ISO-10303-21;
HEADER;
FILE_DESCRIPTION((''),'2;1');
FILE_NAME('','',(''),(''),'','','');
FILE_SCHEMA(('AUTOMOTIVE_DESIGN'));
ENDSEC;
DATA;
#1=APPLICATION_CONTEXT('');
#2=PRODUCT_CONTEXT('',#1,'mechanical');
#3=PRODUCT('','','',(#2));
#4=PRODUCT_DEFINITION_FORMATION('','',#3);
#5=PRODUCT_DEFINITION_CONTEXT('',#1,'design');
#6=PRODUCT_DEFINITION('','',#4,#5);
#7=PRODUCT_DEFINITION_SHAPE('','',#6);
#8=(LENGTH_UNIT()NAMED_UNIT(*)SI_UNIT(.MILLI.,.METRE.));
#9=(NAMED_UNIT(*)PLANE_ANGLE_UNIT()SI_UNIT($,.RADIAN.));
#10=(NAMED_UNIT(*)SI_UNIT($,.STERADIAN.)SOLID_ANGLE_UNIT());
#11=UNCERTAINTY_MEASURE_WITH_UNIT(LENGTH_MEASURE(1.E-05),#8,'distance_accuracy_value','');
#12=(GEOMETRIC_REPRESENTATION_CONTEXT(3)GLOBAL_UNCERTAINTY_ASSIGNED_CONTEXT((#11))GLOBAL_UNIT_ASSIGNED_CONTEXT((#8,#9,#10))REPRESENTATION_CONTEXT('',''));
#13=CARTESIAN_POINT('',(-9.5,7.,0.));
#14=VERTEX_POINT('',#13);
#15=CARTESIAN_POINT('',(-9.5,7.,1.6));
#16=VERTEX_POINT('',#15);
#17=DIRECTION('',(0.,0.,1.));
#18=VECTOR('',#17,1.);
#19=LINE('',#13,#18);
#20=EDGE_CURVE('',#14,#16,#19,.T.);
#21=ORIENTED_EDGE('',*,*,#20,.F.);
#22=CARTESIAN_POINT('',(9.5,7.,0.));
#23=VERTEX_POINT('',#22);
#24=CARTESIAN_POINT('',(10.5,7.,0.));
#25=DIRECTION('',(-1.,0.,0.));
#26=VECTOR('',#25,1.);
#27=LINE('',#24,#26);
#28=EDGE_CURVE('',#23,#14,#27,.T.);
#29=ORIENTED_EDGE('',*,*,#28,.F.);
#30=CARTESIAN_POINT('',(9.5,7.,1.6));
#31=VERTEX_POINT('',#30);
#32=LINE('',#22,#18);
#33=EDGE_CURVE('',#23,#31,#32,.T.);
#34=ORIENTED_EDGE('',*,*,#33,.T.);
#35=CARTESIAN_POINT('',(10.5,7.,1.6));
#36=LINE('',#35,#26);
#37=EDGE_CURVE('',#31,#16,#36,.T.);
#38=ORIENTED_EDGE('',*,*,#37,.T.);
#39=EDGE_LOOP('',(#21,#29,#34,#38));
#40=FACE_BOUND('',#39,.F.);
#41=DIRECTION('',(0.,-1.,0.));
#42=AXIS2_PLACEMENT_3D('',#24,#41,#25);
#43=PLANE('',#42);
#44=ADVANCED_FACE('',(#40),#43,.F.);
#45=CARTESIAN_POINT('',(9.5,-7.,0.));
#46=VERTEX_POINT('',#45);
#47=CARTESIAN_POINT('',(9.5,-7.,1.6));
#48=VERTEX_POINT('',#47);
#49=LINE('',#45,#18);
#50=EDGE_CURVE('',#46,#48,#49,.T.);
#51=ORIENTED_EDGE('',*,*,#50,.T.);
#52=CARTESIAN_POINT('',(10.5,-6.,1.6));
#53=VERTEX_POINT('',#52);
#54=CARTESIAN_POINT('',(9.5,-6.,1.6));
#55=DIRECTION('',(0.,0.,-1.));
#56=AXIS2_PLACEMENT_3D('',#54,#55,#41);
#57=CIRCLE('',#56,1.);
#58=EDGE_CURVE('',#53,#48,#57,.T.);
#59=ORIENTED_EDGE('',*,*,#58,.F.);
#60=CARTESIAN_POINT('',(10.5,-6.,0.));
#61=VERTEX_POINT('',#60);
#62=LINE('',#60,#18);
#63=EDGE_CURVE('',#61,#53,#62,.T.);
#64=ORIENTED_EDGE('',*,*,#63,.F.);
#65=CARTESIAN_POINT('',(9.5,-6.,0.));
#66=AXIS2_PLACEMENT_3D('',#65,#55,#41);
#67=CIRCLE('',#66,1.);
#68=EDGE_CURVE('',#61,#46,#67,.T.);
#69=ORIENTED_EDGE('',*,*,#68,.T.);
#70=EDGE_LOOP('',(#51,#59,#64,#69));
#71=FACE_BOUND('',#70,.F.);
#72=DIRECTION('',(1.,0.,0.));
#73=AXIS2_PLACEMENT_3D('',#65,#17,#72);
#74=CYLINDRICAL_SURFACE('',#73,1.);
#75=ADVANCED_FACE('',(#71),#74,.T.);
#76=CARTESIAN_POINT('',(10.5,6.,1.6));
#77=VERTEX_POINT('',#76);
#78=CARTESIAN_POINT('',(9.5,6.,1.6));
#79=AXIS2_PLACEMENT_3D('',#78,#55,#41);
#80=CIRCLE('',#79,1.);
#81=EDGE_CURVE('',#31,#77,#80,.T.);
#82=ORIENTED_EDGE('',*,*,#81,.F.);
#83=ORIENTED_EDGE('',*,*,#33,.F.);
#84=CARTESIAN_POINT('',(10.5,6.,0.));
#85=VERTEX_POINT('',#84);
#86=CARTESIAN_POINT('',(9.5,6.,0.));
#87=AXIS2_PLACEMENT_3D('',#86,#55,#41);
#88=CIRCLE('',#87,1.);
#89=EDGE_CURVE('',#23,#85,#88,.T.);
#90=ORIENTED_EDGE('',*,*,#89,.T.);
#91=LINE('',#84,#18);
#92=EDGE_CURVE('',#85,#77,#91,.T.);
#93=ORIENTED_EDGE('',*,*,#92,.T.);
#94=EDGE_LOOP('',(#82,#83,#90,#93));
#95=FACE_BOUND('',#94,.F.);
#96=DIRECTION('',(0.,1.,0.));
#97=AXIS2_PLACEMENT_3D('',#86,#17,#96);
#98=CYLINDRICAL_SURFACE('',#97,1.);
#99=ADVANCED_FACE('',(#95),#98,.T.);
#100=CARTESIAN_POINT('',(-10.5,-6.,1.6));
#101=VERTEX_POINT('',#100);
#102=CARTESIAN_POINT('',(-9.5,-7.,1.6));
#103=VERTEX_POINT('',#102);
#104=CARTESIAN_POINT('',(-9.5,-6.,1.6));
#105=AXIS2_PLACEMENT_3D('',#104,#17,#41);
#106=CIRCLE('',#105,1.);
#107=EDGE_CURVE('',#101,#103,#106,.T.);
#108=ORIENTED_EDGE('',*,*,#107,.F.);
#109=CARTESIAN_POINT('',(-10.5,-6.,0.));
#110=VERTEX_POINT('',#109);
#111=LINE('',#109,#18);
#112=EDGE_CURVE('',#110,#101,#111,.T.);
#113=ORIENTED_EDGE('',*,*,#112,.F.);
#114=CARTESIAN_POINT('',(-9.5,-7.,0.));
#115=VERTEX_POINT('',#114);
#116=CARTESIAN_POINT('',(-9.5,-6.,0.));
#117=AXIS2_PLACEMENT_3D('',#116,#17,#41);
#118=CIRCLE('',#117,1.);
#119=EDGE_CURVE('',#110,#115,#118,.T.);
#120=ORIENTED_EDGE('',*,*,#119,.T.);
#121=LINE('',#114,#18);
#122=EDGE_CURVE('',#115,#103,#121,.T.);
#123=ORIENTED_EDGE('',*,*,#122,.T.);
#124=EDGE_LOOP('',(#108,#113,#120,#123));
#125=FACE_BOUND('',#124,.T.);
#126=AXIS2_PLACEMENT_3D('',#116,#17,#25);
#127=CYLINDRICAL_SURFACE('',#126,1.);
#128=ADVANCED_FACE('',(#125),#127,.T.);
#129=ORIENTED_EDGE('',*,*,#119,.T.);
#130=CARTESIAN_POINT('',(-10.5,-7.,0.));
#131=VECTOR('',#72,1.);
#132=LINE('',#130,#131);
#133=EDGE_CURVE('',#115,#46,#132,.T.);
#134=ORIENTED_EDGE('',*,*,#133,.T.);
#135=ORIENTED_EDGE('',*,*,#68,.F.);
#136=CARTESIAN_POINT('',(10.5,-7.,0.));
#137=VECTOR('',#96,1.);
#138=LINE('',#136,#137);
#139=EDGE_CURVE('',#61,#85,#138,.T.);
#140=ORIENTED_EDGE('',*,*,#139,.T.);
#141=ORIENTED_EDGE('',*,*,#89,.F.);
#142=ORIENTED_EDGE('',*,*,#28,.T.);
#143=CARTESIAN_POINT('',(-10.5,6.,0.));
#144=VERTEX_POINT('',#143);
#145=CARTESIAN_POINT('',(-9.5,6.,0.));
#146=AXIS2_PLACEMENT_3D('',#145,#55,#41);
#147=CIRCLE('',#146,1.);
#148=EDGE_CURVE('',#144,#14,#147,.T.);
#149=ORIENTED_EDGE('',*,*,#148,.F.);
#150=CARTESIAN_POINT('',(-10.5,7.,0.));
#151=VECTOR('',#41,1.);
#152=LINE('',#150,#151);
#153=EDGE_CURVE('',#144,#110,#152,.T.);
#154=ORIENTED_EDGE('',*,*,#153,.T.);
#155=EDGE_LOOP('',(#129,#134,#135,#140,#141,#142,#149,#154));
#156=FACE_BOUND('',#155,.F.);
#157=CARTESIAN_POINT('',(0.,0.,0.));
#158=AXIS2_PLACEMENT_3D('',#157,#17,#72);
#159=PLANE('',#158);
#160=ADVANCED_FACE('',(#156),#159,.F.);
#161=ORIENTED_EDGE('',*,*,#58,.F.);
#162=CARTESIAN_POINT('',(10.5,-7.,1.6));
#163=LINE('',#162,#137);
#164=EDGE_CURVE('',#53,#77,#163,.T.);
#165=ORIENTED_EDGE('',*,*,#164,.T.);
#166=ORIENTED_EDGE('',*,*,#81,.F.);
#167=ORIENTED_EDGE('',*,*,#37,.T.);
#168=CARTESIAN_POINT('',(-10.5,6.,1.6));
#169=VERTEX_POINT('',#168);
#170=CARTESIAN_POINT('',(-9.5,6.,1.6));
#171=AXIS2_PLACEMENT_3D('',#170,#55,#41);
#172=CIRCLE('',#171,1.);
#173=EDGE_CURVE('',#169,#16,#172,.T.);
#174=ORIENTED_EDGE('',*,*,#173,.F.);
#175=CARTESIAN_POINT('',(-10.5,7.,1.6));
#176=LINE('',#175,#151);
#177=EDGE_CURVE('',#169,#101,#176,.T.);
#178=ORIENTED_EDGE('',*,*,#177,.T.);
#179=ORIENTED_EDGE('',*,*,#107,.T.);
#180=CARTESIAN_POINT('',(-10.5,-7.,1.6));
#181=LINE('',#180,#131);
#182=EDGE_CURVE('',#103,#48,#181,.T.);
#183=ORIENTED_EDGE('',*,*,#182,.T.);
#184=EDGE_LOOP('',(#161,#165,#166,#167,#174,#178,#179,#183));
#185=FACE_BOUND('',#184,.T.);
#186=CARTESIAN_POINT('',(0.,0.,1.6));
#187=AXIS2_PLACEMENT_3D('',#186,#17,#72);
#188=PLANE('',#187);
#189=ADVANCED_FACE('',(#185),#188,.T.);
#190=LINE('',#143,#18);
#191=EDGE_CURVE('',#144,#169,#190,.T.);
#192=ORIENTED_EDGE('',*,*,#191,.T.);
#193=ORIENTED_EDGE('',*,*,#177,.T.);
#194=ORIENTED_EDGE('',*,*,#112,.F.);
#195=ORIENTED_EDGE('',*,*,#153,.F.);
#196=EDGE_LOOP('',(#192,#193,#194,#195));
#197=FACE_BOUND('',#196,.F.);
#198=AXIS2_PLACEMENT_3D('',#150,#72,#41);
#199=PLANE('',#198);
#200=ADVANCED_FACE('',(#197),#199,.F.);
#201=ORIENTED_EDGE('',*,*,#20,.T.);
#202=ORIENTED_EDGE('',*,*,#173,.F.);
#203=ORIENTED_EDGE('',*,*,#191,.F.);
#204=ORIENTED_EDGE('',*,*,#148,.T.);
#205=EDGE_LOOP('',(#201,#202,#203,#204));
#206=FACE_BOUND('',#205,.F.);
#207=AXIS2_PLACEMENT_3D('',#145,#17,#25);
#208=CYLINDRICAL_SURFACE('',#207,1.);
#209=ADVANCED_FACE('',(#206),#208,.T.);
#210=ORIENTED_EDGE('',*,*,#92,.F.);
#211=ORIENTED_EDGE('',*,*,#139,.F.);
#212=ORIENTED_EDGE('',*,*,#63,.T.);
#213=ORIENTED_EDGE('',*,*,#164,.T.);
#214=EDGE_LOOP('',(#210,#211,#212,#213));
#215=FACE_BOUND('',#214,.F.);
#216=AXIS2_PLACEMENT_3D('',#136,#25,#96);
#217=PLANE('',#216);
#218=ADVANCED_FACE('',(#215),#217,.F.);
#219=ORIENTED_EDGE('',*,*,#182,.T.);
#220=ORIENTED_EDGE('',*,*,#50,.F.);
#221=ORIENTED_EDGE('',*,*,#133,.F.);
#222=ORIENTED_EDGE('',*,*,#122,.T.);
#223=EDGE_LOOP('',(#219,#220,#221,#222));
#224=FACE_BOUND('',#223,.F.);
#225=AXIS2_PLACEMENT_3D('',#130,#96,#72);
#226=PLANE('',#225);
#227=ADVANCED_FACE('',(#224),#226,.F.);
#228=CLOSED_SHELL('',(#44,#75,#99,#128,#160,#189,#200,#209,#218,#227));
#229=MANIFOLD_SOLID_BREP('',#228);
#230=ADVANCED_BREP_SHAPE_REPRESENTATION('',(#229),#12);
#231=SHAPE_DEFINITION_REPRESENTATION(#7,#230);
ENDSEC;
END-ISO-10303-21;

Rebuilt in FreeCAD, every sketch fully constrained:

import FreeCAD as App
import Part
import Sketcher

V = App.Vector


def edges_at(feature, points):
    """Names of the edges that pass closest to the given points."""
    edges = feature.Shape.Edges
    near = lambda p: min(range(len(edges)), key=lambda i: edges[i].distToShape(Part.Vertex(*p))[0])
    return sorted({f"Edge{near(p) + 1}" for p in points})


def add_polygon(sketch, points):
    """Adds a closed chain of lines whose ends are joined by coincident constraints."""
    first, n = sketch.GeometryCount, len(points)
    for a, b in zip(points, points[1:] + points[:1]):
        sketch.addGeometry(Part.LineSegment(App.Vector(*a, 0), App.Vector(*b, 0)), False)
    for i in range(n):
        sketch.addConstraint(Sketcher.Constraint("Coincident", first + i, 2, first + (i + 1) % n, 1))

doc = App.newDocument("Part")
params = doc.addObject("Spreadsheet::Sheet", "Params")
for row, (alias, value) in enumerate([
    ("sketch1_width", "21 mm"),
    ("sketch1_height", "14 mm"),
    ("pad1_length", "1.6 mm"),
    ("fillet_radius", "1 mm"),
], start=1):
    params.set(f"A{row}", alias)
    params.set(f"B{row}", "=" + value)
    params.setAlias(f"B{row}", alias)

body = doc.addObject("PartDesign::Body", "Body")

# Sketch on XY plane
sketch1 = body.newObject("Sketcher::SketchObject", "Sketch")
sketch1.AttachmentSupport = (doc.getObject("XY_Plane"), [""])
sketch1.MapMode = "FlatFace"
add_polygon(sketch1, [(-10.5, 7), (-10.5, -7), (10.5, -7), (10.5, 7)])  # lines 0-3
sketch1.addConstraint(Sketcher.Constraint("Vertical", 0))
sketch1.addConstraint(Sketcher.Constraint("Horizontal", 1))
sketch1.addConstraint(Sketcher.Constraint("Vertical", 2))
sketch1.addConstraint(Sketcher.Constraint("Horizontal", 3))
sketch1.addConstraint(Sketcher.Constraint("Symmetric", 0, 2, 2, 2, -1, 1))
sketch1.addConstraint(Sketcher.Constraint("DistanceX", 1, 1, 1, 2, 21.0))
sketch1.addConstraint(Sketcher.Constraint("DistanceY", 0, 2, 0, 1, 14.0))
sketch1.setExpression("Constraints[9]", "Params.sketch1_width")
sketch1.setExpression("Constraints[10]", "Params.sketch1_height")
pad1 = body.newObject("PartDesign::Pad", "Pad")
pad1.Profile = sketch1
pad1.setExpression("Length", "Params.pad1_length")
doc.recompute()

fillet = body.newObject("PartDesign::Fillet", "Fillet")
fillet.Base = (pad1, edges_at(pad1, [
    (10.5, 7, 0.8),
    (10.5, -7, 0.8),
    (-10.5, -7, 0.8),
    (-10.5, 7, 0.8),
]))
fillet.setExpression("Radius", "Params.fillet_radius")

doc.recompute()
